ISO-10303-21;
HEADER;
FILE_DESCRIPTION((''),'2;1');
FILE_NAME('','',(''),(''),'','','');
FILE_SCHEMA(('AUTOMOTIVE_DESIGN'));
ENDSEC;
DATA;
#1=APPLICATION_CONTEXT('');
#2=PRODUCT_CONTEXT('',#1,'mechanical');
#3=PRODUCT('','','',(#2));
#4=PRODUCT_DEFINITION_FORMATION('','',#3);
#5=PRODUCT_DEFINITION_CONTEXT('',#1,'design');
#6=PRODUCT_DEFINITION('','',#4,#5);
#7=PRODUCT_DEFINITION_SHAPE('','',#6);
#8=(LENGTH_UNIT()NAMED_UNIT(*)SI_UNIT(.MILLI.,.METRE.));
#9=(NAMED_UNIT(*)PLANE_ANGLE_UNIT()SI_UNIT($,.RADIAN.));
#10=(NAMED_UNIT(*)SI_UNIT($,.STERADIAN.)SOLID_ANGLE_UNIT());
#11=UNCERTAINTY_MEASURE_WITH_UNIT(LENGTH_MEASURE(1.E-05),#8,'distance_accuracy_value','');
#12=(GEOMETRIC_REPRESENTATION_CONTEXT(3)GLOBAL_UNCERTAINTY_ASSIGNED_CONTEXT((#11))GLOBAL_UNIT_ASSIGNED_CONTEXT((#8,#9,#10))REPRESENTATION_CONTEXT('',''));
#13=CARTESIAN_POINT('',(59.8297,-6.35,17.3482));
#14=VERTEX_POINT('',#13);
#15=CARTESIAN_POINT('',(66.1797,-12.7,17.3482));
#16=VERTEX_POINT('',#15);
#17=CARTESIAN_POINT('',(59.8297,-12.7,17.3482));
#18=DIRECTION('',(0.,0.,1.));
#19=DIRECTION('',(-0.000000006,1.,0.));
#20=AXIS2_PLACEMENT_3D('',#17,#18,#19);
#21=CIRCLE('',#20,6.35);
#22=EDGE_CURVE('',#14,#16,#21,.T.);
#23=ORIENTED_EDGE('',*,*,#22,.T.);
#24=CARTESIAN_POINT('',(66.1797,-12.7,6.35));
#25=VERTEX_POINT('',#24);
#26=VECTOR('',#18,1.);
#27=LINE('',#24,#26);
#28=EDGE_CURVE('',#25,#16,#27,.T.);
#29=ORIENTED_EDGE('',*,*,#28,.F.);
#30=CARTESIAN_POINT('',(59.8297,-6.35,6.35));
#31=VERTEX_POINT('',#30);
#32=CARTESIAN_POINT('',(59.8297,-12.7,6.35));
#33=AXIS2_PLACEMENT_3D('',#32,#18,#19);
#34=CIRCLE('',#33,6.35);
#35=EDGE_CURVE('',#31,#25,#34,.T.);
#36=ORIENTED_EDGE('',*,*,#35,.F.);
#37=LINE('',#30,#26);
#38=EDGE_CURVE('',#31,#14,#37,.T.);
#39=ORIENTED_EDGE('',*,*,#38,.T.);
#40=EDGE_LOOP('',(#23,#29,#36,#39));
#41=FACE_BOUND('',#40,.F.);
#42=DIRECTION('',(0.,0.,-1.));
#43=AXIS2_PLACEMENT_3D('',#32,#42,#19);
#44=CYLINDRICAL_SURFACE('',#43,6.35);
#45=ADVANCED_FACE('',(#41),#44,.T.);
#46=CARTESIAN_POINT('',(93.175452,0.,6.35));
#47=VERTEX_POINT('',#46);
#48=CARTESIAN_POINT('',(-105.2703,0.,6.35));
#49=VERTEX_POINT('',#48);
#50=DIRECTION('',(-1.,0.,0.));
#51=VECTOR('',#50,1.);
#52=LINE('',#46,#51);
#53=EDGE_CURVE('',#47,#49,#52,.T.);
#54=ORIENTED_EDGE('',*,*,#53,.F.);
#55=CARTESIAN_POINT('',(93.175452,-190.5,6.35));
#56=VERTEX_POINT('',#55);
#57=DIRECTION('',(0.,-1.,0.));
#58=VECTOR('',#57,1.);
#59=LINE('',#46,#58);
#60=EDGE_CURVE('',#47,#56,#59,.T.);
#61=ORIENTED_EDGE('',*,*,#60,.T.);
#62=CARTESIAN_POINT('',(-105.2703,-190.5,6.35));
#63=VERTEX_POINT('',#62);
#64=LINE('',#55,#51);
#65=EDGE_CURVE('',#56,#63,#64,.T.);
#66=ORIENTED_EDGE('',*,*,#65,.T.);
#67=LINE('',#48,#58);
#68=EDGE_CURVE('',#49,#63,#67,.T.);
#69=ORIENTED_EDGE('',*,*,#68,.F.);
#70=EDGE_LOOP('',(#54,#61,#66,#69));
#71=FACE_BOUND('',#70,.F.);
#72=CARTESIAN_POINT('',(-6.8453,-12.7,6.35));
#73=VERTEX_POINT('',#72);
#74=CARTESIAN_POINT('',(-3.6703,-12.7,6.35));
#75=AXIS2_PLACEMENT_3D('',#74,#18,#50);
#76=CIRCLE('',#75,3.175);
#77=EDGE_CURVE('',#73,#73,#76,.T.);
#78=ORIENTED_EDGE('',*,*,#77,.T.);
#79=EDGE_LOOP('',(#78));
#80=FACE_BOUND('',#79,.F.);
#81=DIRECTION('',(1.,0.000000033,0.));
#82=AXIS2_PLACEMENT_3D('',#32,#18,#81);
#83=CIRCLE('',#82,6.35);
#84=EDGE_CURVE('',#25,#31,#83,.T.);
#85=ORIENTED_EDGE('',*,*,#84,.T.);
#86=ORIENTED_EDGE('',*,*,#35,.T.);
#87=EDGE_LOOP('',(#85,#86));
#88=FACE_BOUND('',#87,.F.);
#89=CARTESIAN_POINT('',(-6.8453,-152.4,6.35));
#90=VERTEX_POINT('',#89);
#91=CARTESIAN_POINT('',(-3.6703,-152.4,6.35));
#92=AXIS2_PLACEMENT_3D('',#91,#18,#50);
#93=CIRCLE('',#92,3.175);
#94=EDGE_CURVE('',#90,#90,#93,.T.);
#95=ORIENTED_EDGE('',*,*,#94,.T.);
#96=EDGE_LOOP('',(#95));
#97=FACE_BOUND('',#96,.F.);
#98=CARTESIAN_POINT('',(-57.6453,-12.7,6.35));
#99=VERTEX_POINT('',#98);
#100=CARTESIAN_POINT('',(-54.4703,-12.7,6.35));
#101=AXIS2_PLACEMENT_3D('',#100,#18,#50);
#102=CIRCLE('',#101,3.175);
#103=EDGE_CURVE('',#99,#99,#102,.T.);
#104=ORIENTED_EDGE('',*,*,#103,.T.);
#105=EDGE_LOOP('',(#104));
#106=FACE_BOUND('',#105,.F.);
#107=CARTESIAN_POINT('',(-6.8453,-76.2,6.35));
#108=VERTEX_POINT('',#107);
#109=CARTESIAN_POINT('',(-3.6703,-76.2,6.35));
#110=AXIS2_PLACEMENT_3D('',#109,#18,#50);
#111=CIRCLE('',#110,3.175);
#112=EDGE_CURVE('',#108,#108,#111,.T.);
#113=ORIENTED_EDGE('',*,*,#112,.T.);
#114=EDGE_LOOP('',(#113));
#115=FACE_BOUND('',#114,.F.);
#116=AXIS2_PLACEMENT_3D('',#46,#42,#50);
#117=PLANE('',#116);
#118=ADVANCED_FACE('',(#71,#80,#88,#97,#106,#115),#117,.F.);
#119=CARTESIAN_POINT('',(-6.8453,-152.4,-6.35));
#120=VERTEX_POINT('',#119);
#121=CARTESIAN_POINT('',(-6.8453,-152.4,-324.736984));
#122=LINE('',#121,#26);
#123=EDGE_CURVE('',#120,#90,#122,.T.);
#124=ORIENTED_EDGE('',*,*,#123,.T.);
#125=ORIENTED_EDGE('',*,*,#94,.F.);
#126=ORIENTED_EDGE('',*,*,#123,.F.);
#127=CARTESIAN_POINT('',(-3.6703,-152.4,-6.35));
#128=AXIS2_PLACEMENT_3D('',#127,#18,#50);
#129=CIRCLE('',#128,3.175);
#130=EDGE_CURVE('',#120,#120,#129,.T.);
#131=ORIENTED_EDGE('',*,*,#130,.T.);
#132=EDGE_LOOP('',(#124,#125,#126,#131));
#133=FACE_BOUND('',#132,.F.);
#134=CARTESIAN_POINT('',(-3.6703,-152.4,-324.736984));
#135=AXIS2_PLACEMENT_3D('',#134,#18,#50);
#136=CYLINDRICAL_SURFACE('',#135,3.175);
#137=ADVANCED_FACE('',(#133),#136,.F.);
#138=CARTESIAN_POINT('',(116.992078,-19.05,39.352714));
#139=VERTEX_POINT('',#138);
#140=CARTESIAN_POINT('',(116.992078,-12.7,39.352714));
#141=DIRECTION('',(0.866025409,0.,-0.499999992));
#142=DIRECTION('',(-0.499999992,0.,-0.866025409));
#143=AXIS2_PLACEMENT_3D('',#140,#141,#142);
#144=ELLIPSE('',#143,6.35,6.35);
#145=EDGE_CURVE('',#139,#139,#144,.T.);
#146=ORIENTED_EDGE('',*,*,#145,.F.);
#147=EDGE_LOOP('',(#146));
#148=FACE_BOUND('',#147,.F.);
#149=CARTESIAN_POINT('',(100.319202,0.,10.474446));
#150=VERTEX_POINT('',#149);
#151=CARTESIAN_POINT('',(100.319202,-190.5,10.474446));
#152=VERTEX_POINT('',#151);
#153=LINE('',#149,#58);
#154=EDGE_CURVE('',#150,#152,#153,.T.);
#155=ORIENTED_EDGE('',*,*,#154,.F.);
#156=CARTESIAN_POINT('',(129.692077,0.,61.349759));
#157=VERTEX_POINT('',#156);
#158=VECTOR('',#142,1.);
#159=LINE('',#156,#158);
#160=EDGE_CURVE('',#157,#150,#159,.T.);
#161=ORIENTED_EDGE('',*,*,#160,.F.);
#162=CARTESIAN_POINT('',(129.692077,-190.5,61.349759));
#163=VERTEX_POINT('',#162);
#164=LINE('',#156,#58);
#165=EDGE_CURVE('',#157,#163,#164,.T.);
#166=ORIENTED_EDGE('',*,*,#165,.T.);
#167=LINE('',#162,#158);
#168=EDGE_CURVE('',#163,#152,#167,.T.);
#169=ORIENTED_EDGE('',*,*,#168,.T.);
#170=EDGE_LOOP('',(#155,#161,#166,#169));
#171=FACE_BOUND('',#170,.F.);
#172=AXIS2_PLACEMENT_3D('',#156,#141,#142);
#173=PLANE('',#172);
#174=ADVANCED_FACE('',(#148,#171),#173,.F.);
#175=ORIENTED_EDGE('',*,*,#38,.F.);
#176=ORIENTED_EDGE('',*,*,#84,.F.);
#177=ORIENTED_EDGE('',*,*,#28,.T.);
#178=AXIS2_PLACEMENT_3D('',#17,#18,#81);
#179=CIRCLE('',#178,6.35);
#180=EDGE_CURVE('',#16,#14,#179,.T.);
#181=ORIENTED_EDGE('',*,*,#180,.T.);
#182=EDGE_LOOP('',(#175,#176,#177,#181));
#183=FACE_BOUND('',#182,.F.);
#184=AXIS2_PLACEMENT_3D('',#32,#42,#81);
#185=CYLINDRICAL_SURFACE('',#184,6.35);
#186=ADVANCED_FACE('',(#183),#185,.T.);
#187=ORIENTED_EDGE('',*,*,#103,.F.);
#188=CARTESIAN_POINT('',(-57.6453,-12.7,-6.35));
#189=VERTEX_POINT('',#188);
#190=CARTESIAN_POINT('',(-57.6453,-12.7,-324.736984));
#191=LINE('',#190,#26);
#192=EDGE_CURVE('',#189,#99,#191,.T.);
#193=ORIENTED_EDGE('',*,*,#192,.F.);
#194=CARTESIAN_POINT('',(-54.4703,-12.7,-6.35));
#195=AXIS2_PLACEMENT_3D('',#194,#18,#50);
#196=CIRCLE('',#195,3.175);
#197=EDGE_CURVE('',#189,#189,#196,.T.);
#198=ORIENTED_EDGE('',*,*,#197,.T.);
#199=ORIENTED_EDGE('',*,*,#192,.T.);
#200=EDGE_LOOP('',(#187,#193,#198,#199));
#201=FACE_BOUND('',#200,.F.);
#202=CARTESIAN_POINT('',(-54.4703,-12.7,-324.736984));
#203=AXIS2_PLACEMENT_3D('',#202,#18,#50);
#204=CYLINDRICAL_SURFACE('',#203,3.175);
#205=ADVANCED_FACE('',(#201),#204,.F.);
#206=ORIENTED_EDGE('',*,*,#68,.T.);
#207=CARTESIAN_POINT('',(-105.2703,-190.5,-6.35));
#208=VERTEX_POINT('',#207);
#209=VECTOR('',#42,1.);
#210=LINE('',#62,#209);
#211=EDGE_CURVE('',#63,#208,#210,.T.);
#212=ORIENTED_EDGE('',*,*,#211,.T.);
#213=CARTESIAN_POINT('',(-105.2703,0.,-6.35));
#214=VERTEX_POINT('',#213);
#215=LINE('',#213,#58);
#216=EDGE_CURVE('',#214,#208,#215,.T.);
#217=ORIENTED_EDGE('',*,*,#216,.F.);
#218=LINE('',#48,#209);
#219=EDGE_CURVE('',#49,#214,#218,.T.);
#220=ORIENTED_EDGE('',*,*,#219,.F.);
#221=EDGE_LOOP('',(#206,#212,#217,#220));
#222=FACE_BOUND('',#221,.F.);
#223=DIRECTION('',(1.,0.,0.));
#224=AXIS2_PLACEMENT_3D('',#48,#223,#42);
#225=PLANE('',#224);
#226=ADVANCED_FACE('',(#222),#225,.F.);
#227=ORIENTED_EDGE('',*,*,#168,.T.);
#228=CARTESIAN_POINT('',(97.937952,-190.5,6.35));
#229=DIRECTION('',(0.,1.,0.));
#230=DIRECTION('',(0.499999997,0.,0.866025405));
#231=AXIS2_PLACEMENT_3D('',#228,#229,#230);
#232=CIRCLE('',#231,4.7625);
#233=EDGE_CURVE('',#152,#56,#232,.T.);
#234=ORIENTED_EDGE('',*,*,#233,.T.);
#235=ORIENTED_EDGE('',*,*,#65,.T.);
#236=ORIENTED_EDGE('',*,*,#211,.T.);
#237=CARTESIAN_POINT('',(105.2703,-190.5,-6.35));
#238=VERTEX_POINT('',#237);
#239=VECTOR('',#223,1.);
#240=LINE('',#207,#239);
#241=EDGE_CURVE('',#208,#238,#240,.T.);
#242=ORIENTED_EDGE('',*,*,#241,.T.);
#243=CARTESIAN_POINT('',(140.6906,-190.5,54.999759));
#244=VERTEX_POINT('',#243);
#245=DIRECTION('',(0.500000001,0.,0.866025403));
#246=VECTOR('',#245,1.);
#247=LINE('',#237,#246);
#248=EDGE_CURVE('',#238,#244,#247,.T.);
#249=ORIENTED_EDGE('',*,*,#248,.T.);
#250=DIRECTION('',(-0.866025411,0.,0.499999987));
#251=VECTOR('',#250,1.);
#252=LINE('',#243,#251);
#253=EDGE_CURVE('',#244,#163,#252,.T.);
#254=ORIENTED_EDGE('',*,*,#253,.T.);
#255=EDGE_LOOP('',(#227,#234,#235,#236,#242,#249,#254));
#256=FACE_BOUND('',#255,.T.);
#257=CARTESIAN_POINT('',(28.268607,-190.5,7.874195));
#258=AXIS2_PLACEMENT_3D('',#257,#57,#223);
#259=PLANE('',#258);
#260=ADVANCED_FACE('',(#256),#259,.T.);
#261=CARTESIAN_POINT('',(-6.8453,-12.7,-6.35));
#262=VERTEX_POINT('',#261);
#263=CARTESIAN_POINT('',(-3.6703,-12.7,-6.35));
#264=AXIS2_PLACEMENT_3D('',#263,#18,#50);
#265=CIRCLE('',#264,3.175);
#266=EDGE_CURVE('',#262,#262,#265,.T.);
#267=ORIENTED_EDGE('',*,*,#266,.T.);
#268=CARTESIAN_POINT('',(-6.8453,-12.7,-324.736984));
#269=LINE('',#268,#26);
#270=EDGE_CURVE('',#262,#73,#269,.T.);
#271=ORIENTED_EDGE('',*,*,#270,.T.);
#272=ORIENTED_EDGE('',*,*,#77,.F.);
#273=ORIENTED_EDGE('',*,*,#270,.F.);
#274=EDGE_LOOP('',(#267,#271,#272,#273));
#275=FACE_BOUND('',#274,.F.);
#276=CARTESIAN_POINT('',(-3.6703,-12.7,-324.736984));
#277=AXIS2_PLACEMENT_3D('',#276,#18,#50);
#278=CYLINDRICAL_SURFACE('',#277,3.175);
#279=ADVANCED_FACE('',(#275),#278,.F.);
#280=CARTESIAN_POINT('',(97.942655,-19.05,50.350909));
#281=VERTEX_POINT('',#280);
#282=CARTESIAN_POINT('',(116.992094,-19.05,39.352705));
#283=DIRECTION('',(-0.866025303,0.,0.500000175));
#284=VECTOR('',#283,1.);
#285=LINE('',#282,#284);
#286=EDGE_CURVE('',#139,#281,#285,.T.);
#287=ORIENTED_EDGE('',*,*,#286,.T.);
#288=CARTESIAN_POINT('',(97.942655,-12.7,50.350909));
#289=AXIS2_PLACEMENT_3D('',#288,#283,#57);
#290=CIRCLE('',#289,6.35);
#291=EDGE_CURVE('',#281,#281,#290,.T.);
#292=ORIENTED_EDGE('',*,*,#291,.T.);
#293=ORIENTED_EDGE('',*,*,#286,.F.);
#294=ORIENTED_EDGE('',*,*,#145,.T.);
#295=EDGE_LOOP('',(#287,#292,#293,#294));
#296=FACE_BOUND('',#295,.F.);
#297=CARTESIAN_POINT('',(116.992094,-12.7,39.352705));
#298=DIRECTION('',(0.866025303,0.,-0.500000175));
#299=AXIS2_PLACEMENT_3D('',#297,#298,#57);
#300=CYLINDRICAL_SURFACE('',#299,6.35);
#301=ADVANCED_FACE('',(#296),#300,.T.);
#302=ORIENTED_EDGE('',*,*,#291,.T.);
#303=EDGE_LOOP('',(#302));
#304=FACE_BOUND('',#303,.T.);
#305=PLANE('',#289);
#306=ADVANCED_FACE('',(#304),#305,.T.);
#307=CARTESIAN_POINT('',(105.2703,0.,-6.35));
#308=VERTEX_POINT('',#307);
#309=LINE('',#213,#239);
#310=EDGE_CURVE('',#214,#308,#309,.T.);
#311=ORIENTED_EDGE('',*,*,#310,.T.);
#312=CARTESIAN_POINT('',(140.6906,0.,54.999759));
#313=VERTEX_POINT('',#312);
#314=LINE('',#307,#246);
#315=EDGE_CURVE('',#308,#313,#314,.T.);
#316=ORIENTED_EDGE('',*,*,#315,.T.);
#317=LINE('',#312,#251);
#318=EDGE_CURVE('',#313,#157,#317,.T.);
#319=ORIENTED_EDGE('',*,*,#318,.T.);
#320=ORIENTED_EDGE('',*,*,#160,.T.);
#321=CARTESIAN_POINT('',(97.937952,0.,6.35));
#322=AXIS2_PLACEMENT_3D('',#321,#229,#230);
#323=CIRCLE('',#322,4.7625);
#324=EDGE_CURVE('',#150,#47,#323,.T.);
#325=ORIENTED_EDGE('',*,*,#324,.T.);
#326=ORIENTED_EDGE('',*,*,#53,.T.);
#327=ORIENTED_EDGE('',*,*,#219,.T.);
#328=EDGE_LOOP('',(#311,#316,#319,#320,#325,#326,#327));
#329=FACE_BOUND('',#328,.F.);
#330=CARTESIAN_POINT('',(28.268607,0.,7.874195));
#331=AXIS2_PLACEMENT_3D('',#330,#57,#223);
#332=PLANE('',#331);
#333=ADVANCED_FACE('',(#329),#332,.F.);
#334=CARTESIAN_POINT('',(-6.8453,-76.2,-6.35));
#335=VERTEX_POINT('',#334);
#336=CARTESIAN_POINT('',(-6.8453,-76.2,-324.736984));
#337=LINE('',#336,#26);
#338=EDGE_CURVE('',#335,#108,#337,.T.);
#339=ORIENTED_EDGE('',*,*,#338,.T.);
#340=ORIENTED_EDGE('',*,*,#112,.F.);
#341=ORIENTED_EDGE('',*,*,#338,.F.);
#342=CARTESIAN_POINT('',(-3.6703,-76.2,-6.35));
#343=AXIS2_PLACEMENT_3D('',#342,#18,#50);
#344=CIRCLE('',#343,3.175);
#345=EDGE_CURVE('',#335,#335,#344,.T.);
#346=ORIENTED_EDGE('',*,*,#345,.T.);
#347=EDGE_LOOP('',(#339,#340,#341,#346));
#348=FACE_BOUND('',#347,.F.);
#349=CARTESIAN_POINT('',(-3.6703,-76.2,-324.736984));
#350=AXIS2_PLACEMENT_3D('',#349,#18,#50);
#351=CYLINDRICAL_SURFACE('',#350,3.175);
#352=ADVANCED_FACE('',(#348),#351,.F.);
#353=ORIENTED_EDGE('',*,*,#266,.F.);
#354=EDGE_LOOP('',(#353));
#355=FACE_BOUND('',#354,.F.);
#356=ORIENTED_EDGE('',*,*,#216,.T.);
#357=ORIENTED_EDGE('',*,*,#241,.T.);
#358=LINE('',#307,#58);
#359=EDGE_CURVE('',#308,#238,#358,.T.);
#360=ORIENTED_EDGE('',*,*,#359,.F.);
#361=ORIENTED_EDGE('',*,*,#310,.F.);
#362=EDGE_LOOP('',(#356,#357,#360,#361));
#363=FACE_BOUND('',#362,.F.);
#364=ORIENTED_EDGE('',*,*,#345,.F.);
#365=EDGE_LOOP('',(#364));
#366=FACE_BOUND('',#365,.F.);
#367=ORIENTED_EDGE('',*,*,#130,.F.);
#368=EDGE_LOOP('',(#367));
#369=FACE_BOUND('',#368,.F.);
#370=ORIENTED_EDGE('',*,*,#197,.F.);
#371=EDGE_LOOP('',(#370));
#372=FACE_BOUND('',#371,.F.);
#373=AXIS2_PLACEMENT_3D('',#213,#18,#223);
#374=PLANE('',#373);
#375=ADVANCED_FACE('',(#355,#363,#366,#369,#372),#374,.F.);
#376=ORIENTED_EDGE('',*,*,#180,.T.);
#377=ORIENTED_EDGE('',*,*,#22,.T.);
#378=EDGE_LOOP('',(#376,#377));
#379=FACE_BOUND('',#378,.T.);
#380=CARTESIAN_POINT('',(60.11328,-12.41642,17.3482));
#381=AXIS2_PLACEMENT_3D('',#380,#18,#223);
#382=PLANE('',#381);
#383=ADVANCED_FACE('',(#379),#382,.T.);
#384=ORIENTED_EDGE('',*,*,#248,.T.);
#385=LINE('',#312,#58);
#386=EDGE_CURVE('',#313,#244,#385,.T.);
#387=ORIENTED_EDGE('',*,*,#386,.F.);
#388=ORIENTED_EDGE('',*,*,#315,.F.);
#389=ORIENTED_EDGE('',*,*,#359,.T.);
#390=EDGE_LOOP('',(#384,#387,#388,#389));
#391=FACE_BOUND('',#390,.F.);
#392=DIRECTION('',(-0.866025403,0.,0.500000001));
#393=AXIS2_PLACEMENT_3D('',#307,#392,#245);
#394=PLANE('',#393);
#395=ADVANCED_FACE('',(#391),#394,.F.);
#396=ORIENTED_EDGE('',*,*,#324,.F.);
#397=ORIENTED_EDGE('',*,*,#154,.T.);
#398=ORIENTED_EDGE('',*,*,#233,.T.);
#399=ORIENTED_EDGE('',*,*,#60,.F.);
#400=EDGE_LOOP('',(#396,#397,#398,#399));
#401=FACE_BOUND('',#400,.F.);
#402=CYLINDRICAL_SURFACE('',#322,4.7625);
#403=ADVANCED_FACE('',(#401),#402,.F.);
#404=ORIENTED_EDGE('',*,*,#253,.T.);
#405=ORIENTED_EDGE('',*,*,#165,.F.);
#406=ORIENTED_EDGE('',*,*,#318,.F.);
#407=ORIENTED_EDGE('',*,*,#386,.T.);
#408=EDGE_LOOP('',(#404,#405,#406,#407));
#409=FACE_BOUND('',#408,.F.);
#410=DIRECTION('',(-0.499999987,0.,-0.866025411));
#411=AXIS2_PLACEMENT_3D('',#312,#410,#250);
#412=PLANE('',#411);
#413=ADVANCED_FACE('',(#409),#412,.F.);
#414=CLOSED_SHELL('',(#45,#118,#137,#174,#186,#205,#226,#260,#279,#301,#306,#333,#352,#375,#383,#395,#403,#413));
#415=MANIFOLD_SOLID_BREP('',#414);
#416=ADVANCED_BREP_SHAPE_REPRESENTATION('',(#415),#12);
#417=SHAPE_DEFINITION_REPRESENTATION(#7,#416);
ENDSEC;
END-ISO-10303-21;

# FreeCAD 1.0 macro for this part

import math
import FreeCAD as App
import Part
import Sketcher
Q = App.Units.Quantity

doc = App.newDocument("Part")
body = doc.addObject("PartDesign::Body", "Body")

sketch1 = doc.addObject("Sketcher::SketchObject", "Sketch")
body.addObject(sketch1)
sketch1.AttachmentSupport = (doc.XZ_Plane, [""])
sketch1.MapMode = "FlatFace"
sketch1.addGeometry([
    Part.ArcOfCircle(Part.Circle(App.Vector(97.9, 6.3, 0), App.Vector(0, 0, 1), 4.8), math.radians(180), math.radians(420)),
    Part.LineSegment(App.Vector(93.2, 6.3, 0), App.Vector(-105.3, 6.3, 0)),
    Part.LineSegment(App.Vector(-105.3, 6.3, 0), App.Vector(-105.3, -6.3, 0)),
    Part.LineSegment(App.Vector(-105.3, -6.3, 0), App.Vector(105.3, -6.3, 0)),
    Part.LineSegment(App.Vector(105.3, -6.3, 0), App.Vector(140.7, 55, 0)),
    Part.LineSegment(App.Vector(140.7, 55, 0), App.Vector(129.7, 61.3, 0)),
    Part.LineSegment(App.Vector(129.7, 61.3, 0), App.Vector(100.3, 10.5, 0)),
], False)
sketch1.addConstraint([
    Sketcher.Constraint("Coincident", 0, 1, 1, 1),
    Sketcher.Constraint("Coincident", 1, 2, 2, 1),
    Sketcher.Constraint("Coincident", 2, 2, 3, 1),
    Sketcher.Constraint("Coincident", 3, 2, 4, 1),
    Sketcher.Constraint("Coincident", 4, 2, 5, 1),
    Sketcher.Constraint("Coincident", 5, 2, 6, 1),
    Sketcher.Constraint("Coincident", 6, 2, 0, 2),
    Sketcher.Constraint("Horizontal", 1),
    Sketcher.Constraint("Vertical", 2),
    Sketcher.Constraint("Horizontal", 3),
    Sketcher.Constraint("Symmetric", 1, 2, 3, 2, -1, 1),
    Sketcher.Constraint("Perpendicular", 4, 5),
    Sketcher.Constraint("Perpendicular", 5, 6),
    Sketcher.Constraint("DistanceY", 2, 2, 2, 1, Q("0.5 in")),
    Sketcher.Constraint("Angle", 4, Q("60 deg")),
    Sketcher.Constraint("Radius", 0, Q("0.1875 in")),
    Sketcher.Constraint("Distance", 5, Q("0.5 in")),
    Sketcher.Constraint("DistanceY", 2, 2, 0, 3, Q("0.5 in")),
    Sketcher.Constraint("DistanceX", 3, 1, 3, 2, Q("8.289 in")),
    Sketcher.Constraint("Distance", 4, Q("2.789 in")),
    Sketcher.Constraint("DistanceX", 0, 3, 6, 2, Q("0.09375 in")),
])
pad1 = doc.addObject("PartDesign::Pad", "Pad")
body.addObject(pad1)
pad1.Profile = sketch1
pad1.Length = Q("7.5 in")

sketch2 = doc.addObject("Sketcher::SketchObject", "Sketch001")
body.addObject(sketch2)
sketch2.AttachmentSupport = (doc.XY_Plane, [""])
sketch2.MapMode = "FlatFace"
sketch2.AttachmentOffset = App.Placement(App.Vector(0, 0, -0.25 * 25.4), App.Rotation())
sketch2.addGeometry([
    Part.Circle(App.Vector(-3.7, -152.4, 0), App.Vector(0, 0, 1), 3.2),
    Part.Circle(App.Vector(-3.7, -76.2, 0), App.Vector(0, 0, 1), 3.2),
    Part.Circle(App.Vector(-3.7, -12.7, 0), App.Vector(0, 0, 1), 3.2),
    Part.Circle(App.Vector(-54.5, -12.7, 0), App.Vector(0, 0, 1), 3.2),
], False)
sketch2.addConstraint([
    Sketcher.Constraint("Equal", 0, 1),
    Sketcher.Constraint("Equal", 1, 2),
    Sketcher.Constraint("Equal", 2, 3),
    Sketcher.Constraint("Horizontal", 2, 3, 3, 3),
    Sketcher.Constraint("Vertical", 0, 3, 1, 3),
    Sketcher.Constraint("Vertical", 1, 3, 2, 3),
    Sketcher.Constraint("Diameter", 0, Q("0.25 in")),
    Sketcher.Constraint("DistanceY", 0, 3, -1, 1, Q("6 in")),
    Sketcher.Constraint("DistanceY", 1, 3, -1, 1, Q("3 in")),
    Sketcher.Constraint("DistanceX", 3, 3, 2, 3, Q("2 in")),
    Sketcher.Constraint("DistanceY", 2, 3, -1, 1, Q("0.5 in")),
    Sketcher.Constraint("DistanceX", 0, 3, -1, 1, Q("0.1445 in")),
])
doc.recompute()
hole = doc.addObject("PartDesign::Hole", "Hole")
body.addObject(hole)
hole.Profile = sketch2
hole.ThreadType = "None"
hole.Diameter = Q("0.25 in")
hole.DepthType = "ThroughAll"
hole.Reversed = True

sketch3 = doc.addObject("Sketcher::SketchObject", "Sketch002")
body.addObject(sketch3)
sketch3.AttachmentSupport = (doc.XY_Plane, [""])
sketch3.MapMode = "FlatFace"
sketch3.AttachmentOffset = App.Placement(App.Vector(0, 0, 0.25 * 25.4), App.Rotation())
sketch3.addGeometry([
    Part.ArcOfCircle(Part.Circle(App.Vector(60, -13, 0), App.Vector(0, 0, 1), 6), math.radians(90), math.radians(360)),
    Part.ArcOfCircle(Part.Circle(App.Vector(60, -13, 0), App.Vector(0, 0, 1), 6), math.radians(0), math.radians(90)),
], False)
sketch3.addConstraint([
    Sketcher.Constraint("Tangent", 0, 1, 1, 2),
    Sketcher.Constraint("Coincident", 1, 1, 0, 2),
    Sketcher.Constraint("Horizontal", 0, 3, 1, 1),
    Sketcher.Constraint("Vertical", 1, 3, 0, 1),
    Sketcher.Constraint("Radius", 0, Q("0.25 in")),
    Sketcher.Constraint("DistanceY", 0, 3, -1, 1, Q("0.5 in")),
    Sketcher.Constraint("DistanceX", -1, 1, 0, 3, Q("2.3555 in")),
])
pad2 = doc.addObject("PartDesign::Pad", "Pad001")
body.addObject(pad2)
pad2.Profile = sketch3
pad2.Length = Q("0.433 in")

sketch4 = doc.addObject("Sketcher::SketchObject", "Sketch003")
body.addObject(sketch4)
sketch4.Placement = App.Placement(App.Vector(70.703833, 0, -40.820877), App.Rotation(App.Vector(0, -1, 0), App.Vector(0.500000175, 0, 0.866025303), App.Vector(-0.866025303, 0, 0.500000175), "ZXY"))
sketch4.addGeometry(Part.Circle(App.Vector(13, 93, 0), App.Vector(0, 0, 1), 6), False)
sketch4.addConstraint([
    Sketcher.Constraint("Diameter", 0, Q("0.5 in")),
    Sketcher.Constraint("DistanceX", -1, 1, 0, 3, Q("0.5 in")),
    Sketcher.Constraint("DistanceY", -1, 1, 0, 3, 92.576489),
])
pad3 = doc.addObject("PartDesign::Pad", "Pad002")
body.addObject(pad3)
pad3.Profile = sketch4
pad3.Length = Q("0.866 in")

doc.recompute()
